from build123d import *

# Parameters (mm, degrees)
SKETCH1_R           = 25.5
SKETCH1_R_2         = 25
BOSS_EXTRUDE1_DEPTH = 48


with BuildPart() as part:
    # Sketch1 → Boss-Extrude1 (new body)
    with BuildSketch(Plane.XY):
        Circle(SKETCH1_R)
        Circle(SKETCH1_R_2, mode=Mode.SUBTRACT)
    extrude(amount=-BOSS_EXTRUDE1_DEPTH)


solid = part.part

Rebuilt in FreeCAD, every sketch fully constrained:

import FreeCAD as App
import Part
import Sketcher
from FreeCAD import Vector
Q = App.Units.Quantity

doc = App.newDocument("Part")
body = doc.addObject("PartDesign::Body", "Body")

# Sketch on XY plane
sketch1 = doc.addObject("Sketcher::SketchObject", "Sketch")
body.addObject(sketch1)
sketch1.AttachmentSupport = (doc.XY_Plane, [""])
sketch1.MapMode = "FlatFace"
sketch1.addGeometry([
    Part.Circle(Vector(0, 0, 0), Vector(0, 0, 1), 26),
    Part.Circle(Vector(0, 0, 0), Vector(0, 0, 1), 25),
], False)
sketch1.addConstraint([
    Sketcher.Constraint("Coincident", 0, 3, -1, 1),
    Sketcher.Constraint("Coincident", 1, 3, -1, 1),
    Sketcher.Constraint("Diameter", 0, Q("51 mm")),
    Sketcher.Constraint("Diameter", 1, Q("50 mm")),
])
pad1 = doc.addObject("PartDesign::Pad", "Pad")
body.addObject(pad1)
pad1.Profile = sketch1
pad1.Length = 48
pad1.Reversed = True

doc.recompute()
